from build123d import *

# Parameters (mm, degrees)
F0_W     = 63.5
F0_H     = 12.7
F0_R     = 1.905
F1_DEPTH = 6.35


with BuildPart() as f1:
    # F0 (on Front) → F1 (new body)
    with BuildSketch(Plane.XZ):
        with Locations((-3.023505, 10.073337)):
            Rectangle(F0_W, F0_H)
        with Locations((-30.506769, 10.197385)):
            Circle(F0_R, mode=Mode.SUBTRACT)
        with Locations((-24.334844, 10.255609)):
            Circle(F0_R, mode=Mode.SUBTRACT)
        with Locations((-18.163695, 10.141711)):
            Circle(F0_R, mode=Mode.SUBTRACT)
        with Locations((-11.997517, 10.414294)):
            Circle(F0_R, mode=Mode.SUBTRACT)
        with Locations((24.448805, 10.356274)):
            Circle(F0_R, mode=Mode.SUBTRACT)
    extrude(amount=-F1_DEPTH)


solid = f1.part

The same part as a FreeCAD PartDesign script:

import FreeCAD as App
import Part
import Sketcher

V = App.Vector
Q = App.Units.Quantity

doc = App.newDocument("Part")
body = doc.addObject("PartDesign::Body", "Body")

# Sketch on XZ plane
sketch1 = body.newObject("Sketcher::SketchObject", "Sketch")
sketch1.AttachmentSupport = (doc.getObject("XZ_Plane"), [""])
sketch1.MapMode = "FlatFace"
sketch1.addGeometry([
    Part.LineSegment(V(-34.773505, 16.423337, 0), V(-34.773505, 3.723337, 0)),  # 0
    Part.LineSegment(V(-34.773505, 3.723337, 0), V(28.726495, 3.723337, 0)),  # 1
    Part.LineSegment(V(28.726495, 3.723337, 0), V(28.726495, 16.423337, 0)),  # 2
    Part.LineSegment(V(28.726495, 16.423337, 0), V(-34.773505, 16.423337, 0)),  # 3
    Part.Circle(V(-30.506769, 10.197385, 0), V(0, 0, 1), 1.905),  # 4
    Part.Circle(V(-24.334844, 10.255609, 0), V(0, 0, 1), 1.905),  # 5
    Part.Circle(V(-18.163695, 10.141711, 0), V(0, 0, 1), 1.905),  # 6
    Part.Circle(V(-11.997517, 10.414294, 0), V(0, 0, 1), 1.905),  # 7
    Part.Circle(V(24.448805, 10.356274, 0), V(0, 0, 1), 1.905),  # 8
], False)
sketch1.addConstraint([
    Sketcher.Constraint("Coincident", 0, 2, 1, 1),
    Sketcher.Constraint("Coincident", 1, 2, 2, 1),
    Sketcher.Constraint("Coincident", 2, 2, 3, 1),
    Sketcher.Constraint("Coincident", 3, 2, 0, 1),
    Sketcher.Constraint("Vertical", 0),
    Sketcher.Constraint("Horizontal", 1),
    Sketcher.Constraint("Vertical", 2),
    Sketcher.Constraint("Horizontal", 3),
    Sketcher.Constraint("Equal", 4, 5),
    Sketcher.Constraint("Equal", 5, 6),
    Sketcher.Constraint("Equal", 6, 7),
    Sketcher.Constraint("Equal", 7, 8),
    Sketcher.Constraint("Diameter", 4, Q("0.15 in")),
    Sketcher.Constraint("DistanceX", 1, 1, 1, 2, Q("2.5 in")),
    Sketcher.Constraint("DistanceY", 0, 2, 0, 1, Q("0.5 in")),
    Sketcher.Constraint("DistanceX", 6, 3, 8, 3, 42.6125),
    Sketcher.Constraint("DistanceX", 4, 3, -1, 1, 30.506769),
    Sketcher.Constraint("DistanceY", -1, 1, 5, 3, 10.255609),
    Sketcher.Constraint("DistanceY", -1, 1, 6, 3, 10.141711),
    Sketcher.Constraint("DistanceX", 5, 3, 6, 3, 6.171149),
    Sketcher.Constraint("DistanceX", 6, 3, 7, 3, 6.166178),
    Sketcher.Constraint("DistanceX", 4, 3, 7, 3, 18.509252),
    Sketcher.Constraint("DistanceY", 4, 3, 7, 3, 0.216909),
    Sketcher.Constraint("DistanceY", 8, 3, 7, 3, 0.05802),
    Sketcher.Constraint("DistanceY", 0, 2, 4, 3, 6.474048),
    Sketcher.Constraint("DistanceX", 0, 2, 5, 3, 10.438661),
    Sketcher.Constraint("DistanceY", 5, 3, 2, 2, 6.167728),
])
pad1 = body.newObject("PartDesign::Pad", "Pad")
pad1.Profile = sketch1
pad1.Length = Q("0.25 in")
pad1.Reversed = True

doc.recompute()
